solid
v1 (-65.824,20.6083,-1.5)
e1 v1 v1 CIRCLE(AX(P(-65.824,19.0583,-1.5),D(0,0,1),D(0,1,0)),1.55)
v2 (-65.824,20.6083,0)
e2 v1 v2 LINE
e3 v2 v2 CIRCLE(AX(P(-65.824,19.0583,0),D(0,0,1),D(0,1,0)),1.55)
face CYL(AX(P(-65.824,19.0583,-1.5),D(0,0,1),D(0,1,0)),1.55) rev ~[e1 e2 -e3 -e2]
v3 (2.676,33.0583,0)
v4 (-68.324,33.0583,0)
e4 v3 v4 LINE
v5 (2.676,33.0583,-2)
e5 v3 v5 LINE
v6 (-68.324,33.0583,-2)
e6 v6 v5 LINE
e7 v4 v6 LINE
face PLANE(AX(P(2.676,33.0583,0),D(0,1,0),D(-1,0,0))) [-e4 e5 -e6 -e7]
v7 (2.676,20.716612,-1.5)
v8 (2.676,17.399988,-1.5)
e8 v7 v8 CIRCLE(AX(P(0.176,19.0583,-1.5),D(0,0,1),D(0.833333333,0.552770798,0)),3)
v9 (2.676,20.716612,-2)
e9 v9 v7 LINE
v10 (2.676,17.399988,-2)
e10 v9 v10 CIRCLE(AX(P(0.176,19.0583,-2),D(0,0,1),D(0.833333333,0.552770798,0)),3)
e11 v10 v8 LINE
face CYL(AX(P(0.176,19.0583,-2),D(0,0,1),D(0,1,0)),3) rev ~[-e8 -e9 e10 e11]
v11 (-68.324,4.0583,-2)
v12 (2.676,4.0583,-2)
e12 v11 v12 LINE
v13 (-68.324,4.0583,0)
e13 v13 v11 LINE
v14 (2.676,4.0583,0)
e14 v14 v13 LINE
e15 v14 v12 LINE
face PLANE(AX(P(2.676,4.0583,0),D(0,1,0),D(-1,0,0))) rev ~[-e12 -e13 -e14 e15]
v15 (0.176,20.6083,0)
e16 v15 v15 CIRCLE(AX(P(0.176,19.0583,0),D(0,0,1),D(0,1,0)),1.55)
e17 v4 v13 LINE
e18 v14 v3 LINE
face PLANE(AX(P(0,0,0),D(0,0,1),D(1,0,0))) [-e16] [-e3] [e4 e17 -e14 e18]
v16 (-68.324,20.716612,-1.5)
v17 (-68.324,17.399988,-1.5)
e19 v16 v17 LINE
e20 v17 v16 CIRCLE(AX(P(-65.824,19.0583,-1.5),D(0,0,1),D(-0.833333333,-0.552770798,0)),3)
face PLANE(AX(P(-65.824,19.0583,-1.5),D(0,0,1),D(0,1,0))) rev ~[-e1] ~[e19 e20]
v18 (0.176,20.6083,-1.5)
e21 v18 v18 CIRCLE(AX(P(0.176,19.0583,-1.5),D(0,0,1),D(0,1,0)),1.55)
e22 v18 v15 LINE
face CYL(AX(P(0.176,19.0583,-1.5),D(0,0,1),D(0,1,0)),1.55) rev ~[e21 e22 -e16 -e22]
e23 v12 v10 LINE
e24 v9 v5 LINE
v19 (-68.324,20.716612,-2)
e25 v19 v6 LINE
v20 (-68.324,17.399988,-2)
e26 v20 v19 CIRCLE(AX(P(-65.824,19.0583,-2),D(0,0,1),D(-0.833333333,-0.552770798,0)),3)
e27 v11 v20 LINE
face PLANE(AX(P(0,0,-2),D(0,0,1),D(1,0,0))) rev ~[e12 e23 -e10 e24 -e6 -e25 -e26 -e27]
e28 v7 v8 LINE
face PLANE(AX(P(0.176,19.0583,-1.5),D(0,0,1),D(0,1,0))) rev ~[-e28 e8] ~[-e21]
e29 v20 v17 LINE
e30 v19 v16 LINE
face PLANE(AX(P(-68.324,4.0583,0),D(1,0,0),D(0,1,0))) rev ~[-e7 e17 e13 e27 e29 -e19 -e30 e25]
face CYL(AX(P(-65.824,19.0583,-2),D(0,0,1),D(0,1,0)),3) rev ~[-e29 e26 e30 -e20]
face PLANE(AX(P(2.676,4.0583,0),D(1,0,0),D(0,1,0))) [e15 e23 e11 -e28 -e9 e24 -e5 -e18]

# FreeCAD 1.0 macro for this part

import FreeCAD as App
import Part
import Sketcher

V = App.Vector
Q = App.Units.Quantity


def add_polygon(sketch, points):
    """Adds a closed chain of lines whose ends are joined by coincident constraints."""
    first, n = sketch.GeometryCount, len(points)
    for a, b in zip(points, points[1:] + points[:1]):
        sketch.addGeometry(Part.LineSegment(App.Vector(*a, 0), App.Vector(*b, 0)), False)
    for i in range(n):
        sketch.addConstraint(Sketcher.Constraint("Coincident", first + i, 2, first + (i + 1) % n, 1))

doc = App.newDocument("Part")
body = doc.addObject("PartDesign::Body", "Body")

sketch1 = body.newObject("Sketcher::SketchObject", "Sketch")
sketch1.AttachmentSupport = (doc.getObject("XY_Plane"), [""])
sketch1.MapMode = "FlatFace"
add_polygon(sketch1, [(3, 4), (3, 33), (-68, 33), (-68, 4)])
sketch1.addConstraint(Sketcher.Constraint("Vertical", 0))
sketch1.addConstraint(Sketcher.Constraint("Horizontal", 1))
sketch1.addConstraint(Sketcher.Constraint("Vertical", 2))
sketch1.addConstraint(Sketcher.Constraint("Horizontal", 3))
sketch1.addConstraint(Sketcher.Constraint("DistanceX", 1, 2, 1, 1, Q("71 mm")))
sketch1.addConstraint(Sketcher.Constraint("DistanceY", 0, 1, 0, 2, Q("29 mm")))
sketch1.addConstraint(Sketcher.Constraint("DistanceX", -1, 1, 0, 2, Q("2.676 mm")))
sketch1.addConstraint(Sketcher.Constraint("DistanceY", -1, 1, 0, 2, Q("33.0583 mm")))
pad1 = body.newObject("PartDesign::Pad", "Pad")
pad1.Profile = sketch1
pad1.Length = 2
pad1.Reversed = True

sketch2 = body.newObject("Sketcher::SketchObject", "Sketch001")
sketch2.AttachmentSupport = (doc.getObject("XY_Plane"), [""])
sketch2.MapMode = "FlatFace"
sketch2.AttachmentOffset = App.Placement(V(0, 0, -2), App.Rotation())
sketch2.addGeometry(Part.Circle(V(0.2, 19.1, 0), V(0, 0, 1), 1.6), False)
sketch2.addGeometry(Part.Circle(V(-65.8, 19.1, 0), V(0, 0, 1), 1.6), False)
sketch2.addConstraint(Sketcher.Constraint("Equal", 0, 1))
sketch2.addConstraint(Sketcher.Constraint("Horizontal", 0, 3, 1, 3))
sketch2.addConstraint(Sketcher.Constraint("Diameter", 0, Q("3.1 mm")))
sketch2.addConstraint(Sketcher.Constraint("DistanceX", 1, 3, 0, 3, Q("66 mm")))
sketch2.addConstraint(Sketcher.Constraint("DistanceX", -1, 1, 0, 3, Q("0.176 mm")))
sketch2.addConstraint(Sketcher.Constraint("DistanceY", -1, 1, 0, 3, Q("19.0583 mm")))
doc.recompute()
hole = body.newObject("PartDesign::Hole", "Hole")
hole.Profile = sketch2
hole.ThreadType = "None"
hole.Diameter = 3.1
hole.DepthType = "ThroughAll"
hole.HoleCutType = "Counterbore"
hole.HoleCutDiameter = 6
hole.HoleCutDepth = 0.5
hole.Reversed = True

doc.recompute()
